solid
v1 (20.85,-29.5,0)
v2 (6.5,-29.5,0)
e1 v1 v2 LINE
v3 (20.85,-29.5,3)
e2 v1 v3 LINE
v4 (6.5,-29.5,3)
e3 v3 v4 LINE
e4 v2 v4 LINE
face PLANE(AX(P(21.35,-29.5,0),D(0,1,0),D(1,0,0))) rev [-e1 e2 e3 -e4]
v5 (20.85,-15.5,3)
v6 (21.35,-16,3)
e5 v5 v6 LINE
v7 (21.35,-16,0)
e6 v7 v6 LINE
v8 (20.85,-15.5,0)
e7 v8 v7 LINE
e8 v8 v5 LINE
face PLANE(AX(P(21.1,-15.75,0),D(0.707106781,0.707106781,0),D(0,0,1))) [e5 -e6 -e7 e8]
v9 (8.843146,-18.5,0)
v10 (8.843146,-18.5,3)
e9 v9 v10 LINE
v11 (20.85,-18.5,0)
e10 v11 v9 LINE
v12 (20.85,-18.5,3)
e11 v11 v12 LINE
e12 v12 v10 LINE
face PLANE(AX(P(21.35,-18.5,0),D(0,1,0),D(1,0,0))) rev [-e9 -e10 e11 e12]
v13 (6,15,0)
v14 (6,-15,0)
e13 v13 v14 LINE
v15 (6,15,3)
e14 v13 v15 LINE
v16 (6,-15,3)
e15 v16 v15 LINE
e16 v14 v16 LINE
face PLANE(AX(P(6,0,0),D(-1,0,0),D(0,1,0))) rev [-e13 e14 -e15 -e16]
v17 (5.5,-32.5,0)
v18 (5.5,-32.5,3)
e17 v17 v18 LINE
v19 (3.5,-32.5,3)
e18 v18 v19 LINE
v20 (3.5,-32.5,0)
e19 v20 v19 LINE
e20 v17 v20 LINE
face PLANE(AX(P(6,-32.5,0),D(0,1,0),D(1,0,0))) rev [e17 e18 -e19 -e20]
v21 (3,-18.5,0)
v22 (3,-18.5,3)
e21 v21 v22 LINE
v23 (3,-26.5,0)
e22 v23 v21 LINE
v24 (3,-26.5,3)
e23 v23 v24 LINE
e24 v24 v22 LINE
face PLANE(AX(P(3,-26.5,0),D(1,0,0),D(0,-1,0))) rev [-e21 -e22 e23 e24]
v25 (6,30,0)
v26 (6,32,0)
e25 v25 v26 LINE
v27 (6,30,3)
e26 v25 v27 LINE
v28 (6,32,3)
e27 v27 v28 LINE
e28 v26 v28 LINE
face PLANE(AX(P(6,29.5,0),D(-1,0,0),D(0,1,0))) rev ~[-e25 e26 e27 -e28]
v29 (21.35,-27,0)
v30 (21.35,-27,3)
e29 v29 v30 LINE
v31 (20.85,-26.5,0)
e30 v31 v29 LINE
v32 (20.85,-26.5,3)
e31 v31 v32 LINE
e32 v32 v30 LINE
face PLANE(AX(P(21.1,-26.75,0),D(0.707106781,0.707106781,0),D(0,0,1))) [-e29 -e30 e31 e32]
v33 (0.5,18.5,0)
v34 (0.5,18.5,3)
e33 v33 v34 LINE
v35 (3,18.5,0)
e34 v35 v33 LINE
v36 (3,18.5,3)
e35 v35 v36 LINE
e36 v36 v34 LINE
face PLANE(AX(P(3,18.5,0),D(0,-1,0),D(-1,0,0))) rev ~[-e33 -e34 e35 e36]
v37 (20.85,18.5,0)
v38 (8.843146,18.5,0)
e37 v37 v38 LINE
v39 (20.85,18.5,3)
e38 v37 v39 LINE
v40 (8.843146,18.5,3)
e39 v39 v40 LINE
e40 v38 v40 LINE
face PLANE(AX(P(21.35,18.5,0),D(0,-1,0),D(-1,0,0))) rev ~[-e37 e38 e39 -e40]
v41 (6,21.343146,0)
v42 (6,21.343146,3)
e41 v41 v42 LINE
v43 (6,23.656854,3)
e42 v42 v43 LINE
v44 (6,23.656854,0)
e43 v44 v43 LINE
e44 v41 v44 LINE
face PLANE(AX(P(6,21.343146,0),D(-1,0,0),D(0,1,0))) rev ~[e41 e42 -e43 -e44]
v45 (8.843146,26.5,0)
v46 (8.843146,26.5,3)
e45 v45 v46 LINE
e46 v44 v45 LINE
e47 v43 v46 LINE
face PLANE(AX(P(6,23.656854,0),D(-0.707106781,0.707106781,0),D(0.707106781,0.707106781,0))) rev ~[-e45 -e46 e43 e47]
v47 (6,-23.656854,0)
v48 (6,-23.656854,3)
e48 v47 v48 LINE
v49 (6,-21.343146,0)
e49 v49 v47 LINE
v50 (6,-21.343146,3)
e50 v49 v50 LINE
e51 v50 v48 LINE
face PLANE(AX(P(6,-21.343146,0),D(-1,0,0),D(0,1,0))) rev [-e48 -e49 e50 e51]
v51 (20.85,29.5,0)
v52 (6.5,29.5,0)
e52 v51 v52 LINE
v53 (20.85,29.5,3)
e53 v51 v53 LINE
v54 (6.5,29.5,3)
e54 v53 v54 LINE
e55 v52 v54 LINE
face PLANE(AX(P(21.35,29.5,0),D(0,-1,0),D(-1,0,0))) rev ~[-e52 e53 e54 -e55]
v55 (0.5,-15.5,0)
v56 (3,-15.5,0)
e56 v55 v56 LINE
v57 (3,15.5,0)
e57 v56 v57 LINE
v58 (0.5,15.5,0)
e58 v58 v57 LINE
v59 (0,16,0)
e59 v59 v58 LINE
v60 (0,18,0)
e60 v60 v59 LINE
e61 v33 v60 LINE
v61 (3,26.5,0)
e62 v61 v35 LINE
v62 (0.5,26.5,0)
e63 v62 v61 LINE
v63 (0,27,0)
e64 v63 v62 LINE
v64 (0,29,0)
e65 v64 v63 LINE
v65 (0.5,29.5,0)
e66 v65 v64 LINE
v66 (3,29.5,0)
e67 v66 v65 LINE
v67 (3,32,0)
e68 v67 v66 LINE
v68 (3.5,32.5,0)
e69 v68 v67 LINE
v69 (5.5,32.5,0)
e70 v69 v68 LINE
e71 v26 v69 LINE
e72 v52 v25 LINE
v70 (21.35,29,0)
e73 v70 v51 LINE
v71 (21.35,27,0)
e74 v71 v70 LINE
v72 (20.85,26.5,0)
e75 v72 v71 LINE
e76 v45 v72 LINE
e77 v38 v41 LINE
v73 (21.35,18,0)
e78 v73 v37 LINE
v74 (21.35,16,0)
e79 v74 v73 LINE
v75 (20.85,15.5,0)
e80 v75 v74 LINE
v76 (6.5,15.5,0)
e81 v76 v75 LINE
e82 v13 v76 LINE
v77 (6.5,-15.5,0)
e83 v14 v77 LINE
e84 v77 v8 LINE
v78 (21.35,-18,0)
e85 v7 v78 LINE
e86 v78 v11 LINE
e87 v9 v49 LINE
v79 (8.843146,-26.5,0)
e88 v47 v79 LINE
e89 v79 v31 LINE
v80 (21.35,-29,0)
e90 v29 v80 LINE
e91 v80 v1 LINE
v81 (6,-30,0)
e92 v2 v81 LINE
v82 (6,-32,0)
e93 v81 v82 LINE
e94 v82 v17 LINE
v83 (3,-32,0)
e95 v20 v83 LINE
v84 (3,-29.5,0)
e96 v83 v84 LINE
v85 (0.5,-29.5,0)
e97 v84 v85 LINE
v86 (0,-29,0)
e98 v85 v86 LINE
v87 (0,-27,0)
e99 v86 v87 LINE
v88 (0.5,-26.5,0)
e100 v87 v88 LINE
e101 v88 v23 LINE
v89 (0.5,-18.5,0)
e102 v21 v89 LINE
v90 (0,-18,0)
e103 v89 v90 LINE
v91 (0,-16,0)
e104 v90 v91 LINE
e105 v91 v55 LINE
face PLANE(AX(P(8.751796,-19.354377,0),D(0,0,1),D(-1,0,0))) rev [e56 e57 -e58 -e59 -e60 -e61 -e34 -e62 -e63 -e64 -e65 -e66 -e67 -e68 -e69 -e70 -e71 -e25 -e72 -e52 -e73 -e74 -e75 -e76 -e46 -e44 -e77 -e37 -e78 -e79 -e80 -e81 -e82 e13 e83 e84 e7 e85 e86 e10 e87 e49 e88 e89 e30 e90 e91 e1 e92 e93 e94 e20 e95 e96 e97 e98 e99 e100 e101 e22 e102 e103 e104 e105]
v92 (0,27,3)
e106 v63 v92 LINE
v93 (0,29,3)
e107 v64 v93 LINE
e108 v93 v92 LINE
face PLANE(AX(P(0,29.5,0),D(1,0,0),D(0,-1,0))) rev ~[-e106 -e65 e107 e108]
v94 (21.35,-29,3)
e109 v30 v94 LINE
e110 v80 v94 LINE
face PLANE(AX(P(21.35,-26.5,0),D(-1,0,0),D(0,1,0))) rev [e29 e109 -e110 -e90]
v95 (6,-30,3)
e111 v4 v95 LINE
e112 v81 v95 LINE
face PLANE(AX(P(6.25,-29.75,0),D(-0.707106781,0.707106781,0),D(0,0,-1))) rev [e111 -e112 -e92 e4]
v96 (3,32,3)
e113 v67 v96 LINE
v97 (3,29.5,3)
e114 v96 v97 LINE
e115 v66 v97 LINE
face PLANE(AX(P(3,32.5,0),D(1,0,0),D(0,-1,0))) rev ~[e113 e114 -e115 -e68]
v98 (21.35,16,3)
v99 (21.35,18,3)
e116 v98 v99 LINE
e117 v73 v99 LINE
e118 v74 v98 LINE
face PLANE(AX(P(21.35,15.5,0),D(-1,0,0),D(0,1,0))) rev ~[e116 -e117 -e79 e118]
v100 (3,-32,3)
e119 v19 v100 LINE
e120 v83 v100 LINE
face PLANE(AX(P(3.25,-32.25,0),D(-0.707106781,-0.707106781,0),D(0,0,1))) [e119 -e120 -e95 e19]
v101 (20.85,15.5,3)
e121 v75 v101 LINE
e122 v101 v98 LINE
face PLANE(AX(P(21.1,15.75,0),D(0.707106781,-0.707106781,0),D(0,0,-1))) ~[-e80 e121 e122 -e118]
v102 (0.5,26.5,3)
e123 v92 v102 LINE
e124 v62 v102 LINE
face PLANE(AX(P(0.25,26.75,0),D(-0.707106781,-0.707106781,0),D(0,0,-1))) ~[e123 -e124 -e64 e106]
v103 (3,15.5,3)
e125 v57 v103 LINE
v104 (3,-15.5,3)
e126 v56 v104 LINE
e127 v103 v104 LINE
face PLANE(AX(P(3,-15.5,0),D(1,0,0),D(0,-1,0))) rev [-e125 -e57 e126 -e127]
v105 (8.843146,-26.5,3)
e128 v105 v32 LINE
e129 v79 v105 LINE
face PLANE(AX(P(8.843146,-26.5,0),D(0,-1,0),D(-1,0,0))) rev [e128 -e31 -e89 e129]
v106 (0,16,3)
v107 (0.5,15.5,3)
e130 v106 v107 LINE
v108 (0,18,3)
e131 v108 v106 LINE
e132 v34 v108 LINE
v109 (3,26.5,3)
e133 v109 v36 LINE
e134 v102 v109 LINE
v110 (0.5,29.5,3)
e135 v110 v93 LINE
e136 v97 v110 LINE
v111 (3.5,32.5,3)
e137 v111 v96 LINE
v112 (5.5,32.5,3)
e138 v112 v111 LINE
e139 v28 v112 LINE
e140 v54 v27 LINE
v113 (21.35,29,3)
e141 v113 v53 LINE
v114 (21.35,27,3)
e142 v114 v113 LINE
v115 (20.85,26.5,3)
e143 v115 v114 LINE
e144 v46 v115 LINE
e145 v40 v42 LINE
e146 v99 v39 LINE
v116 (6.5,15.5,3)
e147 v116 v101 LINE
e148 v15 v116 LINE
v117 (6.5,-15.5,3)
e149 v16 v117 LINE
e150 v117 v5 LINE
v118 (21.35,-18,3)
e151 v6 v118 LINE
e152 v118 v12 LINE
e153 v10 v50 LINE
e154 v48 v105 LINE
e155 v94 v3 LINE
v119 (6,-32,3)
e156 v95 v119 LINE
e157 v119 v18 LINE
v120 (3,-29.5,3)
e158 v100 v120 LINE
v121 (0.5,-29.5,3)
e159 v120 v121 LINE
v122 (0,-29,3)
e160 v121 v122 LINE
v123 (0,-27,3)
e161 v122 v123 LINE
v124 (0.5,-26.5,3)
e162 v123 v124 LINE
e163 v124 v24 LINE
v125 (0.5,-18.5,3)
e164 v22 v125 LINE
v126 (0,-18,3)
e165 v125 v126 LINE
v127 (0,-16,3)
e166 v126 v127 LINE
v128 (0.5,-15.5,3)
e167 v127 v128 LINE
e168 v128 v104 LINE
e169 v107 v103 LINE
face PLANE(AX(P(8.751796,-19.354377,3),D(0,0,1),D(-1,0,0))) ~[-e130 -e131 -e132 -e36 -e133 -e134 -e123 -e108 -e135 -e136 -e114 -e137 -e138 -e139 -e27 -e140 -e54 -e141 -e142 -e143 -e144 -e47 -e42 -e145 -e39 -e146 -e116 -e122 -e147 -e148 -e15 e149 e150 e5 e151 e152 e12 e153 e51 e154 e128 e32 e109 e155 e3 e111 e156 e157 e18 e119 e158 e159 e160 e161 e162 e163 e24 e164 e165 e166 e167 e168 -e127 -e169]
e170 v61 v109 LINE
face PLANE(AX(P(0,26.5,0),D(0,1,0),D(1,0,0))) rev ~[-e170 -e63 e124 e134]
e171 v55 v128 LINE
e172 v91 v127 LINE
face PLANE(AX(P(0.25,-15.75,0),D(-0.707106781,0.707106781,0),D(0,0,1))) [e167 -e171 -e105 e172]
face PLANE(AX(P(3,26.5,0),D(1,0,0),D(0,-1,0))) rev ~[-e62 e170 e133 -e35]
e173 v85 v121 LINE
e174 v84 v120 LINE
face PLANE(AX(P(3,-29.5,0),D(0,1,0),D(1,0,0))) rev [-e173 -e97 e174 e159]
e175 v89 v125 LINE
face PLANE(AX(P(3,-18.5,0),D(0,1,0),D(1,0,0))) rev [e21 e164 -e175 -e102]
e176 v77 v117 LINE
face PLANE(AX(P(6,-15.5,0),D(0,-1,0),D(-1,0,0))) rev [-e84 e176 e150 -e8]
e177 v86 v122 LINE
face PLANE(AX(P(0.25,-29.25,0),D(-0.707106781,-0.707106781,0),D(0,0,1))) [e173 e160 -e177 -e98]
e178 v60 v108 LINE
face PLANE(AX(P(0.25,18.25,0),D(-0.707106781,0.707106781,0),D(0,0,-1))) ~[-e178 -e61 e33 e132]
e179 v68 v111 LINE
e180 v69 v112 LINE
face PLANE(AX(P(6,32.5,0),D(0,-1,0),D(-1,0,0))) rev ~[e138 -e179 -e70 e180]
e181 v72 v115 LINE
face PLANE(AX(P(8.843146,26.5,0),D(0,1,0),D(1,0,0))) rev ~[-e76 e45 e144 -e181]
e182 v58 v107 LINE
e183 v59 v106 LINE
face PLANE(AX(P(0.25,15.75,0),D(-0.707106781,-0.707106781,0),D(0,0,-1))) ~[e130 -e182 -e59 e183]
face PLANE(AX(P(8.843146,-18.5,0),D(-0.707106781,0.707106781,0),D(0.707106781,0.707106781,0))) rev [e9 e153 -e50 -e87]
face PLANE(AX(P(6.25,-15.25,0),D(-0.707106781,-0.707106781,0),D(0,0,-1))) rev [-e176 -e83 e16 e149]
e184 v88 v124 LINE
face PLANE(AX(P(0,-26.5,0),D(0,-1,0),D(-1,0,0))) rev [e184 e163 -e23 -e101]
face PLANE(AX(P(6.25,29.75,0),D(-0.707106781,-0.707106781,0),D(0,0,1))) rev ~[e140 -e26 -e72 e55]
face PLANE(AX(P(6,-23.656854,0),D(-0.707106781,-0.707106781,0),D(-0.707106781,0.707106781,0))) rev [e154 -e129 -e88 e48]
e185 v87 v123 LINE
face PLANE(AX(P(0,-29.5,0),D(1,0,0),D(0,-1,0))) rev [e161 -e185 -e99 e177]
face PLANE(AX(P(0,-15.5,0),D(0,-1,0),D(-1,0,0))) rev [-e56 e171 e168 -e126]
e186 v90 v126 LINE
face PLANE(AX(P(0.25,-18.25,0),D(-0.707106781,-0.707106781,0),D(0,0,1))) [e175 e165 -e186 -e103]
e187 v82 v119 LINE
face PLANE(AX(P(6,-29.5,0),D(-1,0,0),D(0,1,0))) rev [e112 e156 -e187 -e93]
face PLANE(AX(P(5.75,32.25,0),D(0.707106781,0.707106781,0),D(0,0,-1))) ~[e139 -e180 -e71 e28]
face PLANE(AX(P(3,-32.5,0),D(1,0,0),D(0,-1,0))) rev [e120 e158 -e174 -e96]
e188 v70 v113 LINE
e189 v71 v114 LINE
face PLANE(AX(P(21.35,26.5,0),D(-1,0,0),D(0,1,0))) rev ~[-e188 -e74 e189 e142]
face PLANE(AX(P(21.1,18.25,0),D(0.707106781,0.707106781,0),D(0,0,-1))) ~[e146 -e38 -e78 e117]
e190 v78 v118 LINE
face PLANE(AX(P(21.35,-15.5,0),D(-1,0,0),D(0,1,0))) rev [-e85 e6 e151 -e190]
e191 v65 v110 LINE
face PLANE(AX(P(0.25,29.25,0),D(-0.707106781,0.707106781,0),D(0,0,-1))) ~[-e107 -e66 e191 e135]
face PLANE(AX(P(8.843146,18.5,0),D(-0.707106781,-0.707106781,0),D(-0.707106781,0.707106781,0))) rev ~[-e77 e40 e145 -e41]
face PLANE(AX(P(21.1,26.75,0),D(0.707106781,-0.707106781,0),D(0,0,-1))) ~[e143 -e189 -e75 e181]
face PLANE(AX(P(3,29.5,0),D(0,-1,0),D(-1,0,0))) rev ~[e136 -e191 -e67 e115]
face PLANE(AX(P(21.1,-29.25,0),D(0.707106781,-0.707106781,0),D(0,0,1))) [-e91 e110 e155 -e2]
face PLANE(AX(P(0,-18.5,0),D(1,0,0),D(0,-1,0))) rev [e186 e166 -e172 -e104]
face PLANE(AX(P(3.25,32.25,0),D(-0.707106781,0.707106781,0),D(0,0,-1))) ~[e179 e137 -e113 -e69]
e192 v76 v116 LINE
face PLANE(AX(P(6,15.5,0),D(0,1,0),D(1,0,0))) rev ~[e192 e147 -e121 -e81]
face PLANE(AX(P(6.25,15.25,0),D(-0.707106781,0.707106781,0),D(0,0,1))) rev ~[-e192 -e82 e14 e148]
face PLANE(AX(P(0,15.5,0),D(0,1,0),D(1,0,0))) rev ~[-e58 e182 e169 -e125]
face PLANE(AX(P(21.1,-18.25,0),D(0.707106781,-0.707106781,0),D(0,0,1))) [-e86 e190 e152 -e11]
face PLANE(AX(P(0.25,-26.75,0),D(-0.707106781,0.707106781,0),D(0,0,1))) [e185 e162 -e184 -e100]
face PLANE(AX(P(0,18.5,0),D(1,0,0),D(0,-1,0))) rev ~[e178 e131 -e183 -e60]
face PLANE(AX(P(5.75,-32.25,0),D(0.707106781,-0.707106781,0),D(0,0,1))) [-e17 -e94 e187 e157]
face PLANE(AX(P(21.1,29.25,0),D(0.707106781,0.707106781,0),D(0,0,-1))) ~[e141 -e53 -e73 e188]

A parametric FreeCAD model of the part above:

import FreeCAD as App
import Part
import Sketcher

V = App.Vector


def edges_at(feature, points):
    """Names of the edges that pass closest to the given points."""
    edges = feature.Shape.Edges
    near = lambda p: min(range(len(edges)), key=lambda i: edges[i].distToShape(Part.Vertex(*p))[0])
    return sorted({f"Edge{near(p) + 1}" for p in points})


def add_polygon(sketch, points):
    """Adds a closed chain of lines whose ends are joined by coincident constraints."""
    first, n = sketch.GeometryCount, len(points)
    for a, b in zip(points, points[1:] + points[:1]):
        sketch.addGeometry(Part.LineSegment(App.Vector(*a, 0), App.Vector(*b, 0)), False)
    for i in range(n):
        sketch.addConstraint(Sketcher.Constraint("Coincident", first + i, 2, first + (i + 1) % n, 1))

doc = App.newDocument("Part")
params = doc.addObject("Spreadsheet::Sheet", "Params")
for row, (alias, value) in enumerate([
    ("sketch1_width", "3 mm"),
    ("sketch1_height", "8 mm"),
    ("sketch1_height2", "15.5 mm"),
    ("sketch1_width2", "15.35 mm"),
    ("pad1_length", "3 mm"),
    ("chamfer_size", "0.5 mm"),
], start=1):
    params.set(f"A{row}", alias)
    params.set(f"B{row}", "=" + value)
    params.setAlias(f"B{row}", alias)

body = doc.addObject("PartDesign::Body", "Body")

sketch1 = doc.addObject("Sketcher::SketchObject", "Sketch")
body.addObject(sketch1)
sketch1.AttachmentSupport = (doc.XY_Plane, [""])
sketch1.MapMode = "FlatFace"
add_polygon(sketch1, [(6, 23.7), (8.8, 26.5), (21.4, 26.5), (21.4, 29.5), (6, 29.5), (6, 32.5), (3, 32.5), (3, 29.5), (0, 29.5), (0, 26.5), (3, 26.5), (3, 18.5), (0, 18.5), (0, 15.5), (3, 15.5), (3, 0), (6, 0), (6, 15.5), (21.4, 15.5), (21.4, 18.5), (8.8, 18.5), (6, 21.3)])
sketch1.addConstraint([
    Sketcher.Constraint("Horizontal", 1),
    Sketcher.Constraint("Vertical", 2),
    Sketcher.Constraint("Horizontal", 3),
    Sketcher.Constraint("Vertical", 4),
    Sketcher.Constraint("Horizontal", 5),
    Sketcher.Constraint("Vertical", 6),
    Sketcher.Constraint("Horizontal", 7),
    Sketcher.Constraint("Vertical", 8),
    Sketcher.Constraint("Horizontal", 9),
    Sketcher.Constraint("Vertical", 10),
    Sketcher.Constraint("Horizontal", 11),
    Sketcher.Constraint("Vertical", 12),
    Sketcher.Constraint("Horizontal", 13),
    Sketcher.Constraint("Vertical", 14),
    Sketcher.Constraint("Horizontal", 15),
    Sketcher.Constraint("Vertical", 16),
    Sketcher.Constraint("Horizontal", 17),
    Sketcher.Constraint("Vertical", 18),
    Sketcher.Constraint("Horizontal", 19),
    Sketcher.Constraint("Vertical", 21),
    Sketcher.Constraint("PointOnObject", 7, 2, -2),
    Sketcher.Constraint("PointOnObject", 11, 2, -2),
    Sketcher.Constraint("PointOnObject", 14, 2, -1),
    Sketcher.Constraint("Perpendicular", 0, 20),
    Sketcher.Constraint("Horizontal", 3, 2, 6, 2),
    Sketcher.Constraint("Horizontal", 1, 2, 8, 2),
    Sketcher.Constraint("Horizontal", 13, 2, 16, 2),
    Sketcher.Constraint("Horizontal", 11, 2, 18, 2),
    Sketcher.Constraint("Vertical", 6, 2, 9, 2),
    Sketcher.Constraint("Vertical", 10, 2, 13, 2),
    Sketcher.Constraint("Vertical", 4, 2, 15, 2),
    Sketcher.Constraint("Vertical", 2, 2, 17, 2),
    Sketcher.Constraint("Vertical", 0, 2, 19, 2),
    Sketcher.Constraint("Vertical", 16, 2, 20, 2),
    Sketcher.Constraint("Equal", 5, 7),
    Sketcher.Constraint("Equal", 15, 2),
    Sketcher.Constraint("Equal", 2, 4),
    Sketcher.Constraint("Equal", 8, 12),
    Sketcher.Constraint("Equal", 0, 20),
    Sketcher.Constraint("DistanceX", 5, 2, 5, 1, 3.0),
    Sketcher.Constraint("DistanceY", 10, 2, 10, 1, 8.0),
    Sketcher.Constraint("DistanceY", 14, 2, 14, 1, 15.5),
    Sketcher.Constraint("DistanceX", 3, 2, 3, 1, 15.35),
    Sketcher.Constraint("DistanceX", 1, 1, 1, 2, 12.506854),
])
sketch1.setExpression("Constraints[61]", "Params.sketch1_width")
sketch1.setExpression("Constraints[62]", "Params.sketch1_height")
sketch1.setExpression("Constraints[63]", "Params.sketch1_height2")
sketch1.setExpression("Constraints[64]", "Params.sketch1_width2")
pad1 = doc.addObject("PartDesign::Pad", "Pad")
body.addObject(pad1)
pad1.Profile = sketch1
pad1.setExpression("Length", "Params.pad1_length")
doc.recompute()

chamfer = doc.addObject("PartDesign::Chamfer", "Chamfer")
body.addObject(chamfer)
chamfer.Base = (pad1, edges_at(pad1, [
    (0, 29.5, 1.5),
    (0, 26.5, 1.5),
    (0, 18.5, 1.5),
    (0, 15.5, 1.5),
    (21.35, 15.5, 1.5),
    (21.35, 26.5, 1.5),
    (3, 32.5, 1.5),
    (6, 32.5, 1.5),
    (21.35, 29.5, 1.5),
    (21.35, 18.5, 1.5),
    (6, 15.5, 1.5),
    (6, 29.5, 1.5),
]))
chamfer.setExpression("Size", "Params.chamfer_size")
body2 = doc.addObject("PartDesign::Body", "Body001")
doc.recompute()

body2.BaseFeature = body
doc.recompute()

mirroring = doc.addObject("Part::Mirroring", "Mirroring")
mirroring.Source = body
mirroring.Base = V(4.5, 0, 1.5)
mirroring.Normal = V(0, -1, 0)
body3 = doc.addObject("PartDesign::Body", "Body002")
body3.BaseFeature = mirroring
boolean = doc.addObject("PartDesign::Boolean", "Boolean")
body2.addObject(boolean)
boolean.Type = "Fuse"
boolean.addObjects([body3])
doc.recompute()
mirroring.Visibility = False

doc.recompute()
